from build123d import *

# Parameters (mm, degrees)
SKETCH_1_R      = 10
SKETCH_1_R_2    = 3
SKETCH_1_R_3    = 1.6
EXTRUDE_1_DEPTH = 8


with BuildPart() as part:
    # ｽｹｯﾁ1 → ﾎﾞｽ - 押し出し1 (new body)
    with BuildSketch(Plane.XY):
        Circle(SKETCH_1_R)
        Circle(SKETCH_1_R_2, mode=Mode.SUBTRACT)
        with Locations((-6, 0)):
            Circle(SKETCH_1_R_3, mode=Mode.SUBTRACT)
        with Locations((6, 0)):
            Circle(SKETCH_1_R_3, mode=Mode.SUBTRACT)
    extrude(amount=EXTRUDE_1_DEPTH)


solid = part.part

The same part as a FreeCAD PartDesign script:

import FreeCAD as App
import Part
import Sketcher

doc = App.newDocument("Part")
body = doc.addObject("PartDesign::Body", "Body")

# Sketch on XY plane
sketch1 = body.newObject("Sketcher::SketchObject", "Sketch")
sketch1.AttachmentSupport = (doc.getObject("XY_Plane"), [""])
sketch1.MapMode = "FlatFace"
sketch1.addGeometry([
    Part.Circle(App.Vector(0, 0, 0), App.Vector(0, 0, 1), 10),
    Part.Circle(App.Vector(-6, 0, 0), App.Vector(0, 0, 1), 1.6),
    Part.Circle(App.Vector(0, 0, 0), App.Vector(0, 0, 1), 3),
    Part.Circle(App.Vector(6, 0, 0), App.Vector(0, 0, 1), 1.6),
], False)
sketch1.addConstraint([
    Sketcher.Constraint("Coincident", 0, 3, -1, 1),
    Sketcher.Constraint("Coincident", 2, 3, -1, 1),
    Sketcher.Constraint("Equal", 1, 3),
    Sketcher.Constraint("Symmetric", 1, 3, 3, 3, -1, 1),
    Sketcher.Constraint("PointOnObject", 1, 3, -1),
    Sketcher.Constraint("Diameter", 0, 20.0),
    Sketcher.Constraint("Diameter", 2, 6.0),
    Sketcher.Constraint("Diameter", 1, 3.2),
    Sketcher.Constraint("DistanceX", 1, 3, -1, 1, 6.0),
])
pad1 = body.newObject("PartDesign::Pad", "Pad")
pad1.Profile = sketch1
pad1.Length = 8

doc.recompute()
